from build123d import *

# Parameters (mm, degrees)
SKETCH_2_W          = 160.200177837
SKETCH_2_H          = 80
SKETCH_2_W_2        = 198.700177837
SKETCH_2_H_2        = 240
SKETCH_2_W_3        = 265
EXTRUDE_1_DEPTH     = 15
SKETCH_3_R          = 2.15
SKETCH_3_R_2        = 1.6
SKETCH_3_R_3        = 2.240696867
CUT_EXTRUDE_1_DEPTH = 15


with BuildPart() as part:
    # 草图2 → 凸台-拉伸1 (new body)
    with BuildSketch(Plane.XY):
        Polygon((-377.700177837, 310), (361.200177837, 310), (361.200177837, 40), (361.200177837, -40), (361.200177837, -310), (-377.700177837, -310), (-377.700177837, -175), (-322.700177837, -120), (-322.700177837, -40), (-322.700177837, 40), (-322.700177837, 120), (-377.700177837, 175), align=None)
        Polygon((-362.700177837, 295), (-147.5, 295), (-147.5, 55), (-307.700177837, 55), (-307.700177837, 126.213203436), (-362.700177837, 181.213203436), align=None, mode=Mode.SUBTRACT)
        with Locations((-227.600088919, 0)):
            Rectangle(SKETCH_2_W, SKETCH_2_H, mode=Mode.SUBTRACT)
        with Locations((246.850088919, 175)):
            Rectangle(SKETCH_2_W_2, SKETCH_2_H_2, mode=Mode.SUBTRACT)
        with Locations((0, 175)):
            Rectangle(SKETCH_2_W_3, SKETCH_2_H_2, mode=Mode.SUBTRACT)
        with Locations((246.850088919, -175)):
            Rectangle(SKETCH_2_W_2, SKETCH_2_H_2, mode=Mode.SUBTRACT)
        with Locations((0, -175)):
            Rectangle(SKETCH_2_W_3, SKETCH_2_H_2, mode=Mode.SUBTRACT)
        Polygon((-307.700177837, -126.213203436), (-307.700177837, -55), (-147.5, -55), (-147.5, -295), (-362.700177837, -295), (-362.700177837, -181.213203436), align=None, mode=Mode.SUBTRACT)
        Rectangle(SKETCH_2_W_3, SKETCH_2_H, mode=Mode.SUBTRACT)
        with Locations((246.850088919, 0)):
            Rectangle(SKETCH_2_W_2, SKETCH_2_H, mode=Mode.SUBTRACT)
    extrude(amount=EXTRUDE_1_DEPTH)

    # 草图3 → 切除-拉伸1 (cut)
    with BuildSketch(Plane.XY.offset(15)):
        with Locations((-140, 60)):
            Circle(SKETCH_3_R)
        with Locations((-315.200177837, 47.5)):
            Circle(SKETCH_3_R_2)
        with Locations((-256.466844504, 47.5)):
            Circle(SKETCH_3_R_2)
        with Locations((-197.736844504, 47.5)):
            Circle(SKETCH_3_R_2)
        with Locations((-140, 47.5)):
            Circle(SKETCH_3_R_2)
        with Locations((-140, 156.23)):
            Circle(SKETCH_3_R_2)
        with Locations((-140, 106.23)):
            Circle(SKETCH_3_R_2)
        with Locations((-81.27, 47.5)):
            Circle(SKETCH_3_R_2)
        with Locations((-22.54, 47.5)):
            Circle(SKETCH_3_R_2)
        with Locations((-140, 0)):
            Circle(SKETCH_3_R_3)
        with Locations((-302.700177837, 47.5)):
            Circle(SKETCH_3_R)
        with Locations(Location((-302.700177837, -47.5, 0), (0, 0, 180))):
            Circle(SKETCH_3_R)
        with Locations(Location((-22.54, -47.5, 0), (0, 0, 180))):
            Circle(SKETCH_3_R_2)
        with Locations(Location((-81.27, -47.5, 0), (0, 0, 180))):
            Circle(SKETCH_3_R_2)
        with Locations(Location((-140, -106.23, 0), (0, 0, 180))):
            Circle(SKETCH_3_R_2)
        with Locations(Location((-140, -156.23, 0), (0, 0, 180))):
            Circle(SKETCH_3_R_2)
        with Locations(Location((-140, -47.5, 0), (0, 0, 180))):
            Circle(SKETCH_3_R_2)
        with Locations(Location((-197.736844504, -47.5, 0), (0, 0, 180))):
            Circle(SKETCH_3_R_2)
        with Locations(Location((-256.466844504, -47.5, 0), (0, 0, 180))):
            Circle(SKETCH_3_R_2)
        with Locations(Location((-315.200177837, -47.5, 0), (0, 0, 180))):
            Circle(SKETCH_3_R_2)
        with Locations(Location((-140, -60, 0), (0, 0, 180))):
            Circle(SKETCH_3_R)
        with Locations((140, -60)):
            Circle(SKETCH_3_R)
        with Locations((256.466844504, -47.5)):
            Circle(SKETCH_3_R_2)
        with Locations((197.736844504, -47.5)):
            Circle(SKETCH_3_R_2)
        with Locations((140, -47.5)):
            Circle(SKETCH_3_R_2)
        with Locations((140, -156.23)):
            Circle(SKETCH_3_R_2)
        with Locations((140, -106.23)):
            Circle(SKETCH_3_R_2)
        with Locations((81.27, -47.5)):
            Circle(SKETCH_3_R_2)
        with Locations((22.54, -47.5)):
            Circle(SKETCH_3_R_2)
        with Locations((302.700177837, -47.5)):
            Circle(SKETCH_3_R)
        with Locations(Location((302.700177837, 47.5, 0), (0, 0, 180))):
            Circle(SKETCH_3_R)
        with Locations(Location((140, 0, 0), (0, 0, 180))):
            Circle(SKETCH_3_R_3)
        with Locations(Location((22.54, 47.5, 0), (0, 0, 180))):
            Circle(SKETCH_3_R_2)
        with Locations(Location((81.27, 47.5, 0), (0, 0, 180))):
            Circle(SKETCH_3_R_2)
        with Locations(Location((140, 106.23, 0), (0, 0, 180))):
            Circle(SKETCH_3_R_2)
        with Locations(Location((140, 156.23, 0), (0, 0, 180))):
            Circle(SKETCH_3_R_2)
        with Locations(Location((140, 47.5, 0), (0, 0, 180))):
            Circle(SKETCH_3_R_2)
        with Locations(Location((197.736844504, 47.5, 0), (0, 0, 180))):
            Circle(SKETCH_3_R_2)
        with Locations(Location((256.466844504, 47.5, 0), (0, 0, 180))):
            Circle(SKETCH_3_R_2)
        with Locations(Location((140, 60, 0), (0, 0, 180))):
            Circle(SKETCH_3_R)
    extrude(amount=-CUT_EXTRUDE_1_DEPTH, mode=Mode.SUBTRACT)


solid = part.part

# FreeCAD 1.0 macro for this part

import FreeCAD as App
import Part
import Sketcher
Q = App.Units.Quantity

doc = App.newDocument("Part")
body = doc.addObject("PartDesign::Body", "Body")

sketch1 = doc.addObject("Sketcher::SketchObject", "Sketch")
body.addObject(sketch1)
sketch1.AttachmentSupport = (doc.XY_Plane, [""])
sketch1.MapMode = "FlatFace"
sketch1.addGeometry([
    Part.LineSegment(App.Vector(361.200178, 310, 0), App.Vector(-377.700178, 310, 0)),
    Part.LineSegment(App.Vector(-377.700178, 310, 0), App.Vector(-377.700178, 175, 0)),
    Part.LineSegment(App.Vector(-377.700178, 175, 0), App.Vector(-322.700178, 120, 0)),
    Part.LineSegment(App.Vector(-322.700178, 120, 0), App.Vector(-322.700178, -120, 0)),
    Part.LineSegment(App.Vector(-322.700178, -120, 0), App.Vector(-377.700178, -175, 0)),
    Part.LineSegment(App.Vector(-377.700178, -175, 0), App.Vector(-377.700178, -310, 0)),
    Part.LineSegment(App.Vector(-377.700178, -310, 0), App.Vector(361.200178, -310, 0)),
    Part.LineSegment(App.Vector(361.200178, -310, 0), App.Vector(361.200178, 310, 0)),
    Part.LineSegment(App.Vector(147.5, -295, 0), App.Vector(147.5, -55, 0)),
    Part.LineSegment(App.Vector(147.5, -55, 0), App.Vector(346.200178, -55, 0)),
    Part.LineSegment(App.Vector(346.200178, -55, 0), App.Vector(346.200178, -295, 0)),
    Part.LineSegment(App.Vector(346.200178, -295, 0), App.Vector(147.5, -295, 0)),
    Part.LineSegment(App.Vector(-132.5, -295, 0), App.Vector(-132.5, -55, 0)),
    Part.LineSegment(App.Vector(-132.5, -55, 0), App.Vector(132.5, -55, 0)),
    Part.LineSegment(App.Vector(132.5, -55, 0), App.Vector(132.5, -295, 0)),
    Part.LineSegment(App.Vector(132.5, -295, 0), App.Vector(-132.5, -295, 0)),
    Part.LineSegment(App.Vector(-307.700178, -126.213203, 0), App.Vector(-307.700178, -55, 0)),
    Part.LineSegment(App.Vector(-307.700178, -55, 0), App.Vector(-147.5, -55, 0)),
    Part.LineSegment(App.Vector(-147.5, -55, 0), App.Vector(-147.5, -295, 0)),
    Part.LineSegment(App.Vector(-147.5, -295, 0), App.Vector(-362.700178, -295, 0)),
    Part.LineSegment(App.Vector(-362.700178, -295, 0), App.Vector(-362.700178, -181.213203, 0)),
    Part.LineSegment(App.Vector(-362.700178, -181.213203, 0), App.Vector(-307.700178, -126.213203, 0)),
    Part.LineSegment(App.Vector(147.5, -40, 0), App.Vector(147.5, 40, 0)),
    Part.LineSegment(App.Vector(147.5, 40, 0), App.Vector(346.200178, 40, 0)),
    Part.LineSegment(App.Vector(346.200178, 40, 0), App.Vector(346.200178, -40, 0)),
    Part.LineSegment(App.Vector(346.200178, -40, 0), App.Vector(147.5, -40, 0)),
    Part.LineSegment(App.Vector(-132.5, -40, 0), App.Vector(-132.5, 40, 0)),
    Part.LineSegment(App.Vector(-132.5, 40, 0), App.Vector(132.5, 40, 0)),
    Part.LineSegment(App.Vector(132.5, 40, 0), App.Vector(132.5, -40, 0)),
    Part.LineSegment(App.Vector(132.5, -40, 0), App.Vector(-132.5, -40, 0)),
    Part.LineSegment(App.Vector(147.5, 55, 0), App.Vector(147.5, 295, 0)),
    Part.LineSegment(App.Vector(147.5, 295, 0), App.Vector(346.200178, 295, 0)),
    Part.LineSegment(App.Vector(346.200178, 295, 0), App.Vector(346.200178, 55, 0)),
    Part.LineSegment(App.Vector(346.200178, 55, 0), App.Vector(147.5, 55, 0)),
    Part.LineSegment(App.Vector(-132.5, 55, 0), App.Vector(-132.5, 295, 0)),
    Part.LineSegment(App.Vector(-132.5, 295, 0), App.Vector(132.5, 295, 0)),
    Part.LineSegment(App.Vector(132.5, 295, 0), App.Vector(132.5, 55, 0)),
    Part.LineSegment(App.Vector(132.5, 55, 0), App.Vector(-132.5, 55, 0)),
    Part.LineSegment(App.Vector(-307.700178, -40, 0), App.Vector(-307.700178, 40, 0)),
    Part.LineSegment(App.Vector(-307.700178, 40, 0), App.Vector(-147.5, 40, 0)),
    Part.LineSegment(App.Vector(-147.5, 40, 0), App.Vector(-147.5, -40, 0)),
    Part.LineSegment(App.Vector(-147.5, -40, 0), App.Vector(-307.700178, -40, 0)),
    Part.LineSegment(App.Vector(-362.700178, 295, 0), App.Vector(-147.5, 295, 0)),
    Part.LineSegment(App.Vector(-147.5, 295, 0), App.Vector(-147.5, 55, 0)),
    Part.LineSegment(App.Vector(-147.5, 55, 0), App.Vector(-307.700178, 55, 0)),
    Part.LineSegment(App.Vector(-307.700178, 55, 0), App.Vector(-307.700178, 126.213203, 0)),
    Part.LineSegment(App.Vector(-307.700178, 126.213203, 0), App.Vector(-362.700178, 181.213203, 0)),
    Part.LineSegment(App.Vector(-362.700178, 181.213203, 0), App.Vector(-362.700178, 295, 0)),
], False)
sketch1.addConstraint([
    Sketcher.Constraint("Coincident", 0, 2, 1, 1),
    Sketcher.Constraint("Coincident", 1, 2, 2, 1),
    Sketcher.Constraint("Coincident", 2, 2, 3, 1),
    Sketcher.Constraint("Coincident", 3, 2, 4, 1),
    Sketcher.Constraint("Coincident", 4, 2, 5, 1),
    Sketcher.Constraint("Coincident", 5, 2, 6, 1),
    Sketcher.Constraint("Coincident", 6, 2, 7, 1),
    Sketcher.Constraint("Coincident", 7, 2, 0, 1),
    Sketcher.Constraint("Coincident", 8, 2, 9, 1),
    Sketcher.Constraint("Coincident", 9, 2, 10, 1),
    Sketcher.Constraint("Coincident", 10, 2, 11, 1),
    Sketcher.Constraint("Coincident", 11, 2, 8, 1),
    Sketcher.Constraint("Coincident", 12, 2, 13, 1),
    Sketcher.Constraint("Coincident", 13, 2, 14, 1),
    Sketcher.Constraint("Coincident", 14, 2, 15, 1),
    Sketcher.Constraint("Coincident", 15, 2, 12, 1),
    Sketcher.Constraint("Coincident", 16, 2, 17, 1),
    Sketcher.Constraint("Coincident", 17, 2, 18, 1),
    Sketcher.Constraint("Coincident", 18, 2, 19, 1),
    Sketcher.Constraint("Coincident", 19, 2, 20, 1),
    Sketcher.Constraint("Coincident", 20, 2, 21, 1),
    Sketcher.Constraint("Coincident", 21, 2, 16, 1),
    Sketcher.Constraint("Coincident", 22, 2, 23, 1),
    Sketcher.Constraint("Coincident", 23, 2, 24, 1),
    Sketcher.Constraint("Coincident", 24, 2, 25, 1),
    Sketcher.Constraint("Coincident", 25, 2, 22, 1),
    Sketcher.Constraint("Coincident", 26, 2, 27, 1),
    Sketcher.Constraint("Coincident", 27, 2, 28, 1),
    Sketcher.Constraint("Coincident", 28, 2, 29, 1),
    Sketcher.Constraint("Coincident", 29, 2, 26, 1),
    Sketcher.Constraint("Coincident", 30, 2, 31, 1),
    Sketcher.Constraint("Coincident", 31, 2, 32, 1),
    Sketcher.Constraint("Coincident", 32, 2, 33, 1),
    Sketcher.Constraint("Coincident", 33, 2, 30, 1),
    Sketcher.Constraint("Coincident", 34, 2, 35, 1),
    Sketcher.Constraint("Coincident", 35, 2, 36, 1),
    Sketcher.Constraint("Coincident", 36, 2, 37, 1),
    Sketcher.Constraint("Coincident", 37, 2, 34, 1),
    Sketcher.Constraint("Coincident", 38, 2, 39, 1),
    Sketcher.Constraint("Coincident", 39, 2, 40, 1),
    Sketcher.Constraint("Coincident", 40, 2, 41, 1),
    Sketcher.Constraint("Coincident", 41, 2, 38, 1),
    Sketcher.Constraint("Coincident", 42, 2, 43, 1),
    Sketcher.Constraint("Coincident", 43, 2, 44, 1),
    Sketcher.Constraint("Coincident", 44, 2, 45, 1),
    Sketcher.Constraint("Coincident", 45, 2, 46, 1),
    Sketcher.Constraint("Coincident", 46, 2, 47, 1),
    Sketcher.Constraint("Coincident", 47, 2, 42, 1),
    Sketcher.Constraint("Horizontal", 0),
    Sketcher.Constraint("Vertical", 1),
    Sketcher.Constraint("Vertical", 3),
    Sketcher.Constraint("Vertical", 5),
    Sketcher.Constraint("Horizontal", 6),
    Sketcher.Constraint("Vertical", 7),
    Sketcher.Constraint("Vertical", 8),
    Sketcher.Constraint("Horizontal", 9),
    Sketcher.Constraint("Vertical", 10),
    Sketcher.Constraint("Horizontal", 11),
    Sketcher.Constraint("Vertical", 12),
    Sketcher.Constraint("Horizontal", 13),
    Sketcher.Constraint("Vertical", 14),
    Sketcher.Constraint("Horizontal", 15),
    Sketcher.Constraint("Vertical", 16),
    Sketcher.Constraint("Horizontal", 17),
    Sketcher.Constraint("Vertical", 18),
    Sketcher.Constraint("Horizontal", 19),
    Sketcher.Constraint("Vertical", 20),
    Sketcher.Constraint("Vertical", 22),
    Sketcher.Constraint("Horizontal", 23),
    Sketcher.Constraint("Vertical", 24),
    Sketcher.Constraint("Horizontal", 25),
    Sketcher.Constraint("Vertical", 26),
    Sketcher.Constraint("Horizontal", 27),
    Sketcher.Constraint("Vertical", 28),
    Sketcher.Constraint("Horizontal", 29),
    Sketcher.Constraint("Vertical", 30),
    Sketcher.Constraint("Horizontal", 31),
    Sketcher.Constraint("Vertical", 32),
    Sketcher.Constraint("Horizontal", 33),
    Sketcher.Constraint("Vertical", 34),
    Sketcher.Constraint("Horizontal", 35),
    Sketcher.Constraint("Vertical", 36),
    Sketcher.Constraint("Horizontal", 37),
    Sketcher.Constraint("Vertical", 38),
    Sketcher.Constraint("Horizontal", 39),
    Sketcher.Constraint("Vertical", 40),
    Sketcher.Constraint("Horizontal", 41),
    Sketcher.Constraint("Horizontal", 42),
    Sketcher.Constraint("Vertical", 43),
    Sketcher.Constraint("Horizontal", 44),
    Sketcher.Constraint("Vertical", 45),
    Sketcher.Constraint("Vertical", 47),
    Sketcher.Constraint("Symmetric", 26, 2, 28, 2, -1, 1),
    Sketcher.Constraint("Symmetric", 18, 2, 30, 2, -1, 1),
    Sketcher.Constraint("Symmetric", 14, 2, 34, 2, -1, 1),
    Sketcher.Constraint("Symmetric", 12, 2, 36, 2, -1, 1),
    Sketcher.Constraint("Symmetric", 25, 2, 39, 2, -1, 1),
    Sketcher.Constraint("Symmetric", 11, 2, 42, 2, -1, 1),
    Sketcher.Constraint("Symmetric", 8, 2, 17, 2, -2),
    Sketcher.Constraint("Symmetric", 1, 2, 4, 2, -1),
    Sketcher.Constraint("Symmetric", 10, 2, 31, 2, -1),
    Sketcher.Constraint("Symmetric", 16, 2, 44, 2, -1),
    Sketcher.Constraint("Symmetric", 20, 2, 46, 2, -1),
    Sketcher.Constraint("Perpendicular", 2, 4),
    Sketcher.Constraint("Parallel", 4, 21),
    Sketcher.Constraint("Perpendicular", 21, 46),
    Sketcher.Constraint("Horizontal", 9, 2, 12, 2),
    Sketcher.Constraint("Horizontal", 11, 2, 14, 2),
    Sketcher.Constraint("Horizontal", 23, 2, 26, 2),
    Sketcher.Constraint("Horizontal", 25, 2, 28, 2),
    Sketcher.Constraint("Horizontal", 33, 2, 36, 2),
    Sketcher.Constraint("Horizontal", 29, 2, 40, 2),
    Sketcher.Constraint("Vertical", 11, 2, 22, 2),
    Sketcher.Constraint("Vertical", 10, 2, 23, 2),
    Sketcher.Constraint("Vertical", 15, 2, 26, 2),
    Sketcher.Constraint("Vertical", 14, 2, 27, 2),
    Sketcher.Constraint("Vertical", 21, 2, 38, 2),
    Sketcher.Constraint("Equal", 1, 5),
    Sketcher.Constraint("Equal", 3, 8),
    Sketcher.Constraint("Equal", 16, 45),
    Sketcher.Constraint("Equal", 4, 21),
    Sketcher.Constraint("DistanceX", 13, 1, 13, 2, Q("265 mm")),
    Sketcher.Constraint("DistanceY", 1, 2, 1, 1, Q("135 mm")),
    Sketcher.Constraint("DistanceY", 3, 2, 3, 1, Q("240 mm")),
    Sketcher.Constraint("DistanceY", 7, 1, 7, 2, Q("620 mm")),
    Sketcher.Constraint("DistanceY", 22, 1, 22, 2, Q("80 mm")),
    Sketcher.Constraint("DistanceY", 8, 2, -1, 1, Q("55 mm")),
    Sketcher.Constraint("DistanceX", 9, 2, 6, 2, Q("15 mm")),
    Sketcher.Constraint("DistanceX", 12, 2, 8, 2, Q("280 mm")),
    Sketcher.Constraint("DistanceX", 3, 2, 16, 2, Q("15 mm")),
    Sketcher.Constraint("DistanceX", 0, 2, 0, 1, Q("738.900356 mm")),
    Sketcher.Constraint("DistanceX", 9, 1, 9, 2, Q("198.700178 mm")),
    Sketcher.Constraint("DistanceY", 16, 1, 16, 2, Q("71.213203 mm")),
])
pad1 = doc.addObject("PartDesign::Pad", "Pad")
body.addObject(pad1)
pad1.Profile = sketch1
pad1.Length = 15

sketch2 = doc.addObject("Sketcher::SketchObject", "Sketch001")
body.addObject(sketch2)
sketch2.AttachmentSupport = (doc.XY_Plane, [""])
sketch2.MapMode = "FlatFace"
sketch2.AttachmentOffset = App.Placement(App.Vector(0, 0, 15), App.Rotation())
sketch2.addGeometry([
    Part.Circle(App.Vector(-140, 60, 0), App.Vector(0, 0, 1), 2.15),
    Part.Circle(App.Vector(-315.200178, 47.5, 0), App.Vector(0, 0, 1), 1.6),
    Part.Circle(App.Vector(-256.466845, 47.5, 0), App.Vector(0, 0, 1), 1.6),
    Part.Circle(App.Vector(-197.736845, 47.5, 0), App.Vector(0, 0, 1), 1.6),
    Part.Circle(App.Vector(-140, 47.5, 0), App.Vector(0, 0, 1), 1.6),
    Part.Circle(App.Vector(-140, 156.23, 0), App.Vector(0, 0, 1), 1.6),
    Part.Circle(App.Vector(-140, 106.23, 0), App.Vector(0, 0, 1), 1.6),
    Part.Circle(App.Vector(-81.27, 47.5, 0), App.Vector(0, 0, 1), 1.6),
    Part.Circle(App.Vector(-22.54, 47.5, 0), App.Vector(0, 0, 1), 1.6),
    Part.Circle(App.Vector(-140, 0, 0), App.Vector(0, 0, 1), 2.240697),
    Part.Circle(App.Vector(-302.700178, 47.5, 0), App.Vector(0, 0, 1), 2.15),
    Part.Circle(App.Vector(-302.700178, -47.5, 0), App.Vector(0, 0, 1), 2.15),
    Part.Circle(App.Vector(-22.54, -47.5, 0), App.Vector(0, 0, 1), 1.6),
    Part.Circle(App.Vector(-81.27, -47.5, 0), App.Vector(0, 0, 1), 1.6),
    Part.Circle(App.Vector(-140, -106.23, 0), App.Vector(0, 0, 1), 1.6),
    Part.Circle(App.Vector(-140, -156.23, 0), App.Vector(0, 0, 1), 1.6),
    Part.Circle(App.Vector(-140, -47.5, 0), App.Vector(0, 0, 1), 1.6),
    Part.Circle(App.Vector(-197.736845, -47.5, 0), App.Vector(0, 0, 1), 1.6),
    Part.Circle(App.Vector(-256.466845, -47.5, 0), App.Vector(0, 0, 1), 1.6),
    Part.Circle(App.Vector(-315.200178, -47.5, 0), App.Vector(0, 0, 1), 1.6),
    Part.Circle(App.Vector(-140, -60, 0), App.Vector(0, 0, 1), 2.15),
    Part.Circle(App.Vector(140, -60, 0), App.Vector(0, 0, 1), 2.15),
    Part.Circle(App.Vector(256.466845, -47.5, 0), App.Vector(0, 0, 1), 1.6),
    Part.Circle(App.Vector(197.736845, -47.5, 0), App.Vector(0, 0, 1), 1.6),
    Part.Circle(App.Vector(140, -47.5, 0), App.Vector(0, 0, 1), 1.6),
    Part.Circle(App.Vector(140, -156.23, 0), App.Vector(0, 0, 1), 1.6),
    Part.Circle(App.Vector(140, -106.23, 0), App.Vector(0, 0, 1), 1.6),
    Part.Circle(App.Vector(81.27, -47.5, 0), App.Vector(0, 0, 1), 1.6),
    Part.Circle(App.Vector(22.54, -47.5, 0), App.Vector(0, 0, 1), 1.6),
    Part.Circle(App.Vector(302.700178, -47.5, 0), App.Vector(0, 0, 1), 2.15),
    Part.Circle(App.Vector(302.700178, 47.5, 0), App.Vector(0, 0, 1), 2.15),
    Part.Circle(App.Vector(140, 0, 0), App.Vector(0, 0, 1), 2.240697),
    Part.Circle(App.Vector(22.54, 47.5, 0), App.Vector(0, 0, 1), 1.6),
    Part.Circle(App.Vector(81.27, 47.5, 0), App.Vector(0, 0, 1), 1.6),
    Part.Circle(App.Vector(140, 106.23, 0), App.Vector(0, 0, 1), 1.6),
    Part.Circle(App.Vector(140, 156.23, 0), App.Vector(0, 0, 1), 1.6),
    Part.Circle(App.Vector(140, 47.5, 0), App.Vector(0, 0, 1), 1.6),
    Part.Circle(App.Vector(197.736845, 47.5, 0), App.Vector(0, 0, 1), 1.6),
    Part.Circle(App.Vector(256.466845, 47.5, 0), App.Vector(0, 0, 1), 1.6),
    Part.Circle(App.Vector(140, 60, 0), App.Vector(0, 0, 1), 2.15),
], False)
sketch2.addConstraint([
    Sketcher.Constraint("Equal", 1, 2),
    Sketcher.Constraint("Equal", 2, 3),
    Sketcher.Constraint("Equal", 3, 4),
    Sketcher.Constraint("Equal", 4, 5),
    Sketcher.Constraint("Equal", 5, 6),
    Sketcher.Constraint("Equal", 6, 7),
    Sketcher.Constraint("Equal", 7, 8),
    Sketcher.Constraint("Equal", 0, 10),
    Sketcher.Constraint("Equal", 10, 11),
    Sketcher.Constraint("Equal", 8, 12),
    Sketcher.Constraint("Equal", 12, 13),
    Sketcher.Constraint("Equal", 13, 14),
    Sketcher.Constraint("Equal", 14, 15),
    Sketcher.Constraint("Equal", 15, 16),
    Sketcher.Constraint("Equal", 16, 17),
    Sketcher.Constraint("Equal", 17, 18),
    Sketcher.Constraint("Equal", 18, 19),
    Sketcher.Constraint("Equal", 11, 20),
    Sketcher.Constraint("Equal", 20, 21),
    Sketcher.Constraint("Equal", 19, 22),
    Sketcher.Constraint("Equal", 22, 23),
    Sketcher.Constraint("Equal", 23, 24),
    Sketcher.Constraint("Equal", 24, 25),
    Sketcher.Constraint("Equal", 25, 26),
    Sketcher.Constraint("Equal", 26, 27),
    Sketcher.Constraint("Equal", 27, 28),
    Sketcher.Constraint("Equal", 21, 29),
    Sketcher.Constraint("Equal", 29, 30),
    Sketcher.Constraint("Equal", 9, 31),
    Sketcher.Constraint("Equal", 28, 32),
    Sketcher.Constraint("Equal", 32, 33),
    Sketcher.Constraint("Equal", 33, 34),
    Sketcher.Constraint("Equal", 34, 35),
    Sketcher.Constraint("Equal", 35, 36),
    Sketcher.Constraint("Equal", 36, 37),
    Sketcher.Constraint("Equal", 37, 38),
    Sketcher.Constraint("Equal", 30, 39),
    Sketcher.Constraint("Symmetric", 0, 3, 21, 3, -1, 1),
    Sketcher.Constraint("Symmetric", 2, 3, 22, 3, -1, 1),
    Sketcher.Constraint("Symmetric", 3, 3, 23, 3, -1, 1),
    Sketcher.Constraint("Symmetric", 4, 3, 24, 3, -1, 1),
    Sketcher.Constraint("Symmetric", 5, 3, 25, 3, -1, 1),
    Sketcher.Constraint("Symmetric", 6, 3, 26, 3, -1, 1),
    Sketcher.Constraint("Symmetric", 7, 3, 27, 3, -1, 1),
    Sketcher.Constraint("Symmetric", 8, 3, 28, 3, -1, 1),
    Sketcher.Constraint("Symmetric", 10, 3, 29, 3, -1, 1),
    Sketcher.Constraint("Symmetric", 11, 3, 30, 3, -1, 1),
    Sketcher.Constraint("Symmetric", 9, 3, 31, 3, -1, 1),
    Sketcher.Constraint("Symmetric", 12, 3, 32, 3, -1, 1),
    Sketcher.Constraint("Symmetric", 13, 3, 33, 3, -1, 1),
    Sketcher.Constraint("Symmetric", 14, 3, 34, 3, -1, 1),
    Sketcher.Constraint("Symmetric", 15, 3, 35, 3, -1, 1),
    Sketcher.Constraint("Symmetric", 16, 3, 36, 3, -1, 1),
    Sketcher.Constraint("Symmetric", 17, 3, 37, 3, -1, 1),
    Sketcher.Constraint("Symmetric", 18, 3, 38, 3, -1, 1),
    Sketcher.Constraint("Symmetric", 20, 3, 39, 3, -1, 1),
    Sketcher.Constraint("Symmetric", 20, 3, 21, 3, -2),
    Sketcher.Constraint("Symmetric", 18, 3, 22, 3, -2),
    Sketcher.Constraint("Symmetric", 17, 3, 23, 3, -2),
    Sketcher.Constraint("Symmetric", 16, 3, 24, 3, -2),
    Sketcher.Constraint("Symmetric", 15, 3, 25, 3, -2),
    Sketcher.Constraint("Symmetric", 14, 3, 26, 3, -2),
    Sketcher.Constraint("Symmetric", 13, 3, 27, 3, -2),
    Sketcher.Constraint("Symmetric", 12, 3, 28, 3, -2),
    Sketcher.Constraint("Symmetric", 11, 3, 29, 3, -2),
    Sketcher.Constraint("Symmetric", 1, 3, 19, 3, -1),
    Sketcher.Constraint("PointOnObject", 9, 3, -1),
    Sketcher.Constraint("Horizontal", 1, 3, 2, 3),
    Sketcher.Constraint("Horizontal", 2, 3, 3, 3),
    Sketcher.Constraint("Horizontal", 3, 3, 4, 3),
    Sketcher.Constraint("Horizontal", 4, 3, 7, 3),
    Sketcher.Constraint("Horizontal", 7, 3, 8, 3),
    Sketcher.Constraint("Horizontal", 8, 3, 10, 3),
    Sketcher.Constraint("Vertical", 0, 3, 4, 3),
    Sketcher.Constraint("Vertical", 4, 3, 5, 3),
    Sketcher.Constraint("Vertical", 5, 3, 6, 3),
    Sketcher.Constraint("Vertical", 6, 3, 9, 3),
    Sketcher.Constraint("Diameter", 0, Q("4.3 mm")),
    Sketcher.Constraint("Diameter", 1, Q("3.2 mm")),
    Sketcher.Constraint("DistanceX", 0, 3, -1, 1, Q("140 mm")),
    Sketcher.Constraint("DistanceY", -1, 1, 0, 3, Q("60 mm")),
    Sketcher.Constraint("DistanceY", 6, 3, 5, 3, Q("50 mm")),
    Sketcher.Constraint("DistanceY", 11, 3, 10, 3, Q("95 mm")),
    Sketcher.Constraint("DistanceX", 1, 3, 10, 3, Q("12.5 mm")),
    Sketcher.Constraint("DistanceY", -1, 1, 5, 3, Q("156.23 mm")),
    Sketcher.Constraint("DistanceX", 7, 3, -1, 1, Q("81.27 mm")),
    Sketcher.Constraint("DistanceX", 8, 3, -1, 1, Q("22.54 mm")),
    Sketcher.Constraint("DistanceX", 2, 3, 3, 3, Q("58.73 mm")),
    Sketcher.Constraint("Diameter", 9, Q("4.481394 mm")),
    Sketcher.Constraint("DistanceX", 1, 3, -1, 1, Q("315.200178 mm")),
    Sketcher.Constraint("DistanceX", 2, 3, -1, 1, Q("256.466845 mm")),
])
pocket1 = doc.addObject("PartDesign::Pocket", "Pocket")
body.addObject(pocket1)
pocket1.Profile = sketch2
pocket1.Length = 15

doc.recompute()
